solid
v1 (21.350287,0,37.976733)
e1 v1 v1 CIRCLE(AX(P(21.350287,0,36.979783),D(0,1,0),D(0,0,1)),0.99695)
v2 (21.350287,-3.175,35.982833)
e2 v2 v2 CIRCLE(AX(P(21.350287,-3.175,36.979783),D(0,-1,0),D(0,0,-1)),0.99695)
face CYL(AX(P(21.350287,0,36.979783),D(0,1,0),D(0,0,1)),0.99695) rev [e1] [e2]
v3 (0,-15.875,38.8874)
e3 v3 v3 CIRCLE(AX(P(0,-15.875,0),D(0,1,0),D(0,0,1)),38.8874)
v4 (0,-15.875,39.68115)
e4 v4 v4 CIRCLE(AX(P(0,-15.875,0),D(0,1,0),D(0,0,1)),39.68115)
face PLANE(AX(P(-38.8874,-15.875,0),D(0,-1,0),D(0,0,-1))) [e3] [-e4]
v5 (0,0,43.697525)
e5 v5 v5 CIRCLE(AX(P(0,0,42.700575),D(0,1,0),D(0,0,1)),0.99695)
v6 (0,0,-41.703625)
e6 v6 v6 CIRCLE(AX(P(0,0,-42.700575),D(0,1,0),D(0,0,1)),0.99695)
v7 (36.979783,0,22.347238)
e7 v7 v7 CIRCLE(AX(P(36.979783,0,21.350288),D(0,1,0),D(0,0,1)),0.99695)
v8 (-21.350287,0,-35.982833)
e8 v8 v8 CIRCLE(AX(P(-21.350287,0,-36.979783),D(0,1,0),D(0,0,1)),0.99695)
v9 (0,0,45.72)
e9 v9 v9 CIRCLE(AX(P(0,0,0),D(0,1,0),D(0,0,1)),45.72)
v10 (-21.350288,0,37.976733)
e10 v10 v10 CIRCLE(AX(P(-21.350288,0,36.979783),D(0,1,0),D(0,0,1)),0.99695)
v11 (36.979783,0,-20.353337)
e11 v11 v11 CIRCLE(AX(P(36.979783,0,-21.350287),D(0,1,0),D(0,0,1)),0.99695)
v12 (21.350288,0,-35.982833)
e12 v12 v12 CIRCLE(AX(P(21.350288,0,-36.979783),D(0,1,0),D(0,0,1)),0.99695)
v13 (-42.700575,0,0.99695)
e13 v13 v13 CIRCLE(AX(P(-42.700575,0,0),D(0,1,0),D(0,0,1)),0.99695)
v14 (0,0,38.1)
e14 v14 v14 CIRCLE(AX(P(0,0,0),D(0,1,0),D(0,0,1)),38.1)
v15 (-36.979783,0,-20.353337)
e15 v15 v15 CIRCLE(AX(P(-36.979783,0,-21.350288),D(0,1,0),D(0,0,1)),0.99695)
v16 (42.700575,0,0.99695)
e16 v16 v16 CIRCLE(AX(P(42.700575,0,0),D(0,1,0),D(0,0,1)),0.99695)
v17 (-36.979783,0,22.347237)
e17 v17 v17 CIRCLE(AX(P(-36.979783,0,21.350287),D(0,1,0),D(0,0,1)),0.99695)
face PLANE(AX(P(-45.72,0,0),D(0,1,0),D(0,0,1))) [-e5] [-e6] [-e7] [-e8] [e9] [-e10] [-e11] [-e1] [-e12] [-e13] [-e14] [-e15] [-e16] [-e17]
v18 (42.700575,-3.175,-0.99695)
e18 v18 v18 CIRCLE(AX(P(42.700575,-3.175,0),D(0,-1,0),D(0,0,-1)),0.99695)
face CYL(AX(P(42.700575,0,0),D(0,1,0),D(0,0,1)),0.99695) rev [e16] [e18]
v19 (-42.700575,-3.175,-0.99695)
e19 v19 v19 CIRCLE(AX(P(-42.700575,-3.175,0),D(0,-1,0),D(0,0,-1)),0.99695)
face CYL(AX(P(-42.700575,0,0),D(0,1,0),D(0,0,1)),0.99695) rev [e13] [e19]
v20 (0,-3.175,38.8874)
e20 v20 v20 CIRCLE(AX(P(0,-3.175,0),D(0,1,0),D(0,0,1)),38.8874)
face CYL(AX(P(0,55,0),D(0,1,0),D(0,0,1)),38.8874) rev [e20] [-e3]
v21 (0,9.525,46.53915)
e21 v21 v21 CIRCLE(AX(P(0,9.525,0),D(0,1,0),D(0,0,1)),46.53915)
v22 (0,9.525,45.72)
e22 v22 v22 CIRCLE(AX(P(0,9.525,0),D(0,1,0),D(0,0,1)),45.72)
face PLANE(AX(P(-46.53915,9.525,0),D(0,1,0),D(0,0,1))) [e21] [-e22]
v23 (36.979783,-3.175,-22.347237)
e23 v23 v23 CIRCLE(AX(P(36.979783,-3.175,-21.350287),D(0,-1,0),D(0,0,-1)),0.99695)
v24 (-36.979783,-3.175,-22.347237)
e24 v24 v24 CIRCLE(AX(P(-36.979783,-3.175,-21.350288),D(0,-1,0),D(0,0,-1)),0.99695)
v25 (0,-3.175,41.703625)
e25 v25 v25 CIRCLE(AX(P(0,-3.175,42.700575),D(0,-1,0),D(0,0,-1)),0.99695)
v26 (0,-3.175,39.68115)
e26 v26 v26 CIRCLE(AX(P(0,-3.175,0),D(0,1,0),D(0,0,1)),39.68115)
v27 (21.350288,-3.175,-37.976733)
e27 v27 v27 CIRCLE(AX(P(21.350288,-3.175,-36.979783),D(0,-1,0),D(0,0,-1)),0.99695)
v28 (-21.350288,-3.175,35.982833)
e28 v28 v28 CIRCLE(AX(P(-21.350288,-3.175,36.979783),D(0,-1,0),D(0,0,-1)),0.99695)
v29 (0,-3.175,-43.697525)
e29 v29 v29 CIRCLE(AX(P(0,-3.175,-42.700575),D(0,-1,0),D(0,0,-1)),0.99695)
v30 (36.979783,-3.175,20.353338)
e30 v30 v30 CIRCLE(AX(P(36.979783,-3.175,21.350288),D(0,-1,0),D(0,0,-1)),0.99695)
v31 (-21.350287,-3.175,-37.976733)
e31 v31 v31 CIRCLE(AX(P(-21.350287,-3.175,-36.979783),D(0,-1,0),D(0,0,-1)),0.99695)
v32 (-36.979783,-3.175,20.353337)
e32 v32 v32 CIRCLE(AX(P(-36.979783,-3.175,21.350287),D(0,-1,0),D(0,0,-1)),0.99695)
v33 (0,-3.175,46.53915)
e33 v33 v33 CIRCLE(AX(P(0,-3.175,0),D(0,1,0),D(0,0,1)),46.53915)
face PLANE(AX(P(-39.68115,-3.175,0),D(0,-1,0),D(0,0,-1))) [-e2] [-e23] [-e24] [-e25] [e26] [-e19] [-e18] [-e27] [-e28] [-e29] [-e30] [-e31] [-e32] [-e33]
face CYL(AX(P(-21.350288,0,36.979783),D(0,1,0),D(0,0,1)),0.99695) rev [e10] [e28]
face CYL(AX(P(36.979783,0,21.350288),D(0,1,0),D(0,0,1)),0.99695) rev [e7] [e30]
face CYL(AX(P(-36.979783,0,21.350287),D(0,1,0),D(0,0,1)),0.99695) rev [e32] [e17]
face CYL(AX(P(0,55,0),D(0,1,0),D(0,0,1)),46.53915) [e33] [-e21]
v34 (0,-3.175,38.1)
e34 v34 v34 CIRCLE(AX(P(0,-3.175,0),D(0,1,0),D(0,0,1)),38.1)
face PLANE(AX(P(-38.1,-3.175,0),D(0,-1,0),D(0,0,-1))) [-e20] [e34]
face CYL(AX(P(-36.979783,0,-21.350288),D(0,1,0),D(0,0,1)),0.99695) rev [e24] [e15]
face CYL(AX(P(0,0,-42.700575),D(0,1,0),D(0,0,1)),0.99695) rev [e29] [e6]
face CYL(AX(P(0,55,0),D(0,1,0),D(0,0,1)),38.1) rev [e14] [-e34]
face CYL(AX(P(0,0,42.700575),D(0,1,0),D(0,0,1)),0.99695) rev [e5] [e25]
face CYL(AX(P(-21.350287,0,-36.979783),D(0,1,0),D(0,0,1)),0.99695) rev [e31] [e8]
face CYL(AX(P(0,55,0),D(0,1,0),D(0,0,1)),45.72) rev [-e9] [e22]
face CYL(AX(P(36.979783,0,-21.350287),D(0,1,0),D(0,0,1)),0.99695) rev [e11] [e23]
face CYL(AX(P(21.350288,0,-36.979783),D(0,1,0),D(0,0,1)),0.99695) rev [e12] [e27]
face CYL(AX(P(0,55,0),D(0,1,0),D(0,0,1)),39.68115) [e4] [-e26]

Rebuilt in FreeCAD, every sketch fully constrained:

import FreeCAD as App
import Part
import Sketcher
Q = App.Units.Quantity

doc = App.newDocument("Part")
body = doc.addObject("PartDesign::Body", "Body")

sketch1 = body.newObject("Sketcher::SketchObject", "Sketch")
sketch1.AttachmentSupport = (doc.getObject("XY_Plane"), [""])
sketch1.MapMode = "FlatFace"
sketch1.addGeometry([
    Part.LineSegment(App.Vector(-38.1, -3.175, 0), App.Vector(-38.1, 0, 0)),
    Part.LineSegment(App.Vector(-38.1, 0, 0), App.Vector(-45.72, 0, 0)),
    Part.LineSegment(App.Vector(-45.72, 0, 0), App.Vector(-45.72, 9.525, 0)),
    Part.LineSegment(App.Vector(-45.72, 9.525, 0), App.Vector(-46.53915, 9.525, 0)),
    Part.LineSegment(App.Vector(-46.53915, 9.525, 0), App.Vector(-46.53915, -3.175, 0)),
    Part.LineSegment(App.Vector(-46.53915, -3.175, 0), App.Vector(-39.68115, -3.175, 0)),
    Part.LineSegment(App.Vector(-39.68115, -3.175, 0), App.Vector(-39.68115, -15.875, 0)),
    Part.LineSegment(App.Vector(-39.68115, -15.875, 0), App.Vector(-38.8874, -15.875, 0)),
    Part.LineSegment(App.Vector(-38.8874, -15.875, 0), App.Vector(-38.8874, -3.175, 0)),
    Part.LineSegment(App.Vector(-38.8874, -3.175, 0), App.Vector(-38.1, -3.175, 0)),
], False)
sketch1.addConstraint([
    Sketcher.Constraint("Coincident", 0, 2, 1, 1),
    Sketcher.Constraint("Coincident", 1, 2, 2, 1),
    Sketcher.Constraint("Coincident", 2, 2, 3, 1),
    Sketcher.Constraint("Coincident", 3, 2, 4, 1),
    Sketcher.Constraint("Coincident", 4, 2, 5, 1),
    Sketcher.Constraint("Coincident", 5, 2, 6, 1),
    Sketcher.Constraint("Coincident", 6, 2, 7, 1),
    Sketcher.Constraint("Coincident", 7, 2, 8, 1),
    Sketcher.Constraint("Coincident", 8, 2, 9, 1),
    Sketcher.Constraint("Coincident", 9, 2, 0, 1),
    Sketcher.Constraint("Vertical", 0),
    Sketcher.Constraint("Horizontal", 1),
    Sketcher.Constraint("Vertical", 2),
    Sketcher.Constraint("Horizontal", 3),
    Sketcher.Constraint("Vertical", 4),
    Sketcher.Constraint("Horizontal", 5),
    Sketcher.Constraint("Vertical", 6),
    Sketcher.Constraint("Horizontal", 7),
    Sketcher.Constraint("Vertical", 8),
    Sketcher.Constraint("Horizontal", 9),
    Sketcher.Constraint("PointOnObject", 0, 2, -1),
    Sketcher.Constraint("Horizontal", 5, 2, 8, 2),
    Sketcher.Constraint("Equal", 4, 6),
    Sketcher.Constraint("DistanceX", 1, 2, 1, 1, Q("0.3 in")),
    Sketcher.Constraint("DistanceY", 4, 2, 4, 1, Q("0.5 in")),
    Sketcher.Constraint("DistanceX", 5, 1, 5, 2, Q("0.27 in")),
    Sketcher.Constraint("DistanceX", 0, 2, -1, 1, Q("1.5 in")),
    Sketcher.Constraint("DistanceX", 7, 1, 7, 2, Q("0.03125 in")),
    Sketcher.Constraint("DistanceX", 9, 1, 9, 2, Q("0.031 in")),
    Sketcher.Constraint("DistanceY", 0, 1, 0, 2, Q("0.125 in")),
])
revolution = body.newObject("PartDesign::Revolution", "Revolution")
revolution.Profile = sketch1
revolution.ReferenceAxis = (sketch1, ["V_Axis"])
revolution.Angle = 360

sketch2 = body.newObject("Sketcher::SketchObject", "Sketch001")
sketch2.AttachmentSupport = (doc.getObject("YZ_Plane"), [""])
sketch2.MapMode = "FlatFace"
sketch2.AttachmentOffset = App.Placement(App.Vector(0, 0, -42.700575), App.Rotation())
sketch2.addGeometry([
    Part.LineSegment(App.Vector(-3.901028, 0, 0), App.Vector(0, 0, 0)),
    Part.LineSegment(App.Vector(0, 0, 0), App.Vector(0, 0.99695, 0)),
    Part.LineSegment(App.Vector(0, 0.99695, 0), App.Vector(-3.302, 0.99695, 0)),
    Part.LineSegment(App.Vector(-3.302, 0.99695, 0), App.Vector(-3.901028, 0, 0)),
], False)
sketch2.addConstraint([
    Sketcher.Constraint("Coincident", 0, 2, 1, 1),
    Sketcher.Constraint("Coincident", 1, 2, 2, 1),
    Sketcher.Constraint("Coincident", 2, 2, 3, 1),
    Sketcher.Constraint("Coincident", 3, 2, 0, 1),
    Sketcher.Constraint("Horizontal", 0),
    Sketcher.Constraint("Vertical", 1),
    Sketcher.Constraint("Horizontal", 2),
    Sketcher.Constraint("Coincident", 0, 2, -1, 1),
    Sketcher.Constraint("Angle", 3, Q("-121 deg")),
    Sketcher.Constraint("DistanceX", 2, 2, 2, 1, Q("0.13 in")),
    Sketcher.Constraint("DistanceY", 1, 1, 1, 2, 0.99695),
])
groove = body.newObject("PartDesign::Groove", "Groove")
groove.Profile = sketch2
groove.ReferenceAxis = (sketch2, ["H_Axis"])
groove.Angle = 360
doc.recompute()

polarpattern = body.newObject("PartDesign::PolarPattern", "PolarPattern")
polarpattern.Originals = [groove]
polarpattern.Axis = (doc.getObject("Y_Axis"), [""])
polarpattern.Angle = 360
polarpattern.Occurrences = 12
body.Tip = polarpattern

doc.recompute()
